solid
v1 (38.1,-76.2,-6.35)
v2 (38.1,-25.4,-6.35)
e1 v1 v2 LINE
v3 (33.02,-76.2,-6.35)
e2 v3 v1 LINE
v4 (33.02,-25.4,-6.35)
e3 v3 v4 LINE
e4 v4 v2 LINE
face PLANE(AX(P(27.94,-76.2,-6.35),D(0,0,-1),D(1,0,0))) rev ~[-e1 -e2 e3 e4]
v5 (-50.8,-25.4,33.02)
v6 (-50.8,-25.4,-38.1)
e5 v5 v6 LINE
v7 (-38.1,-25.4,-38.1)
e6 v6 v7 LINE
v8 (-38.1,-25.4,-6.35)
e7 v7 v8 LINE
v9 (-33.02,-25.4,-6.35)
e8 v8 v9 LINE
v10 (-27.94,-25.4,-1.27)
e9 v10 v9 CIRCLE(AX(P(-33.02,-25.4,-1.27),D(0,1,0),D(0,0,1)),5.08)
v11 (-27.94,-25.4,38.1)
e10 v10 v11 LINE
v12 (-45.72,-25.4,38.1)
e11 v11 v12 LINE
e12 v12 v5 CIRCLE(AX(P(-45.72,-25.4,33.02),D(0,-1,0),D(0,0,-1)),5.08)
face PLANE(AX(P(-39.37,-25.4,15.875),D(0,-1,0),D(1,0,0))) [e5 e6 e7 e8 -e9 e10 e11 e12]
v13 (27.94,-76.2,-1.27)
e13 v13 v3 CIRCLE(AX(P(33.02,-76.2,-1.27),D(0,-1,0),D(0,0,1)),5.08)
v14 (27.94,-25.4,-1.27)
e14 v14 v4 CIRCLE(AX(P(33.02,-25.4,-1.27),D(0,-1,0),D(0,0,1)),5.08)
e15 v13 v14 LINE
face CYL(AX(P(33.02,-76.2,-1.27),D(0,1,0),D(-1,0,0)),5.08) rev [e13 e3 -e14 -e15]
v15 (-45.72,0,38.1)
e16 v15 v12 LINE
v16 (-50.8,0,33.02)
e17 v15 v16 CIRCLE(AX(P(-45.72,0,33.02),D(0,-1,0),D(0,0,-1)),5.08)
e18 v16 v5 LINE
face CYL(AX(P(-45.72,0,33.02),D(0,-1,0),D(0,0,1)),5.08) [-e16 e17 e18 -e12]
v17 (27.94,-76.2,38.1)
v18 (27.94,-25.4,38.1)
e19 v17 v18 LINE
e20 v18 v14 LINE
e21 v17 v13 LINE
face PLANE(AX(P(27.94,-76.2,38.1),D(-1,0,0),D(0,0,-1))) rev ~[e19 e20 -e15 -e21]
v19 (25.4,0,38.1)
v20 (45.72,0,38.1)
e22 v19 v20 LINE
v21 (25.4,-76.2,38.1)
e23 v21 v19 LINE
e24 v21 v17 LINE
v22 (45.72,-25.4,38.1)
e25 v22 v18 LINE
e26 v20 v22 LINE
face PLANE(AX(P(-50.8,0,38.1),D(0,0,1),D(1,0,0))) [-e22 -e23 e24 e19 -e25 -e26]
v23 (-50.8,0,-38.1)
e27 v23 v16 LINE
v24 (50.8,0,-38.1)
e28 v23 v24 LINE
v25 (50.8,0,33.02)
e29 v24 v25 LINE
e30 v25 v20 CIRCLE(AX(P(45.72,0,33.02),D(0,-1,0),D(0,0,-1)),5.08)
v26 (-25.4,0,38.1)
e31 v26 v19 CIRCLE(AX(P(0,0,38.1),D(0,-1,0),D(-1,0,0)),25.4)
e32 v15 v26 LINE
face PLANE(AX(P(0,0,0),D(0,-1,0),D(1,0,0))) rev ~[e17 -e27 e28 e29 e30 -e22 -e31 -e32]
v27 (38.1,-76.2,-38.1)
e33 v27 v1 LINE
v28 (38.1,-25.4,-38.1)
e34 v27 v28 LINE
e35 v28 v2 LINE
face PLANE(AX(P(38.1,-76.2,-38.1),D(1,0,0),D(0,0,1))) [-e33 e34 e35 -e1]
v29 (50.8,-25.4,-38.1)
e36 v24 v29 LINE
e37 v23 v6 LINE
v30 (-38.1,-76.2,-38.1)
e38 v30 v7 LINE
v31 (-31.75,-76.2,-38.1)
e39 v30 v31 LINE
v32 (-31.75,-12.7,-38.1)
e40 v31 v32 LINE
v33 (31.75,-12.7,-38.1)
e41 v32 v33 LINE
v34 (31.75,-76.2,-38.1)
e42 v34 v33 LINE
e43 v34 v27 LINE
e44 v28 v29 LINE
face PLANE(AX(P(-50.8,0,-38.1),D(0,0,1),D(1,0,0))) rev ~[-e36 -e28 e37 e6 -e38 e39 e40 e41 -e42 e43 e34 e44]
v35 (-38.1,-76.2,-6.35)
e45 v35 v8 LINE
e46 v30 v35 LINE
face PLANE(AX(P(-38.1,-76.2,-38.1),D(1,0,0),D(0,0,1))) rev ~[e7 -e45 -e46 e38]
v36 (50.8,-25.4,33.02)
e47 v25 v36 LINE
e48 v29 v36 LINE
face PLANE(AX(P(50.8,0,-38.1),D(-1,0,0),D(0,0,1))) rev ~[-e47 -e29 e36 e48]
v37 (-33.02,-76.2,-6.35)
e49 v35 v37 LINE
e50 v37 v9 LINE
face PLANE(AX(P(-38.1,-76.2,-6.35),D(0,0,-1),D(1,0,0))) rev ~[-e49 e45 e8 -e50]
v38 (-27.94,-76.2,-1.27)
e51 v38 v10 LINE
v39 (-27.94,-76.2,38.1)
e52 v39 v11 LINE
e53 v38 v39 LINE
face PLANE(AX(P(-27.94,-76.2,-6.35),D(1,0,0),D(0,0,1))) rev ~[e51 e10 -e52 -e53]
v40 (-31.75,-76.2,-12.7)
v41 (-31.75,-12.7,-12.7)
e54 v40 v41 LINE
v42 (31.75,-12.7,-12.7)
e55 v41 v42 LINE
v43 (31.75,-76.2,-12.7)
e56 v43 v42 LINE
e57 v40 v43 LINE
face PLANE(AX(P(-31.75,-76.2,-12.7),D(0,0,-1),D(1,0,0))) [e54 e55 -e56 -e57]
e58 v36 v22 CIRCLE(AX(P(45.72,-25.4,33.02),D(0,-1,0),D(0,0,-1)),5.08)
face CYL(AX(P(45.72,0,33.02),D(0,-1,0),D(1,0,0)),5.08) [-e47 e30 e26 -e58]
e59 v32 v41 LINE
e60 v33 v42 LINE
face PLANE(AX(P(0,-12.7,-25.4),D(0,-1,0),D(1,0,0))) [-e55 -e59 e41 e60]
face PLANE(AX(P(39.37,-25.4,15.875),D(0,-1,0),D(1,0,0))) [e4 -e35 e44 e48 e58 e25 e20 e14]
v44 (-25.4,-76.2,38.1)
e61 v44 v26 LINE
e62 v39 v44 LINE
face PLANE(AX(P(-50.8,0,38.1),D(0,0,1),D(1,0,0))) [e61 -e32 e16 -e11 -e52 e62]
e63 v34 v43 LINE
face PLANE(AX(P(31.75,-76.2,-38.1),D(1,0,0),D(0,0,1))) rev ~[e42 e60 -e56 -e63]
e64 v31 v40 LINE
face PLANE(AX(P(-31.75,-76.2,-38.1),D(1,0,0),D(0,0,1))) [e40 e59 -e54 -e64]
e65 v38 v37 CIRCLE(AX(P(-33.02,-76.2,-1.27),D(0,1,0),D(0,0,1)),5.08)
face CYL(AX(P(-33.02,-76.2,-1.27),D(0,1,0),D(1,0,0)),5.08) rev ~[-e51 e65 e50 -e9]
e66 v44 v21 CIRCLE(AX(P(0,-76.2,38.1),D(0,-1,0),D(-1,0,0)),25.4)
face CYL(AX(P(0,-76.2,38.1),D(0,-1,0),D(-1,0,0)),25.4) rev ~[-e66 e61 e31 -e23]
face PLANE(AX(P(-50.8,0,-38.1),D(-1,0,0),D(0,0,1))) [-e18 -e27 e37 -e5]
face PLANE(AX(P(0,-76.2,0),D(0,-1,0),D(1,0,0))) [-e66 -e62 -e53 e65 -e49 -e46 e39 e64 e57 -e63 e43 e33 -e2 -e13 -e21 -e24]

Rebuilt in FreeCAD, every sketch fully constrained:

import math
import FreeCAD as App
import Part
import Sketcher
from FreeCAD import Vector
Q = App.Units.Quantity


def edges_at(feature, points):
    """Names of the edges that pass closest to the given points."""
    edges = feature.Shape.Edges
    near = lambda p: min(range(len(edges)), key=lambda i: edges[i].distToShape(Part.Vertex(*p))[0])
    return sorted({f"Edge{near(p) + 1}" for p in points})


def add_polygon(sketch, points):
    """Adds a closed chain of lines whose ends are joined by coincident constraints."""
    first, n = sketch.GeometryCount, len(points)
    for a, b in zip(points, points[1:] + points[:1]):
        sketch.addGeometry(Part.LineSegment(App.Vector(*a, 0), App.Vector(*b, 0)), False)
    for i in range(n):
        sketch.addConstraint(Sketcher.Constraint("Coincident", first + i, 2, first + (i + 1) % n, 1))

doc = App.newDocument("Part")
body = doc.addObject("PartDesign::Body", "Body")

# Sketch on XZ plane
sketch1 = body.newObject("Sketcher::SketchObject", "Sketch")
sketch1.AttachmentSupport = (doc.getObject("XZ_Plane"), [""])
sketch1.MapMode = "FlatFace"
add_polygon(sketch1, [(-50.8, 38.1), (-50.8, -38.1), (50.8, -38.1), (50.8, 38.1)])  # lines 0-3
sketch1.addConstraint(Sketcher.Constraint("Vertical", 0))
sketch1.addConstraint(Sketcher.Constraint("Horizontal", 1))
sketch1.addConstraint(Sketcher.Constraint("Vertical", 2))
sketch1.addConstraint(Sketcher.Constraint("Horizontal", 3))
sketch1.addConstraint(Sketcher.Constraint("Symmetric", 0, 2, 2, 2, -1, 1))
sketch1.addConstraint(Sketcher.Constraint("DistanceX", 1, 1, 1, 2, Q("4 in")))
sketch1.addConstraint(Sketcher.Constraint("DistanceY", 0, 2, 0, 1, Q("3 in")))
pad1 = body.newObject("PartDesign::Pad", "Pad")
pad1.Profile = sketch1
pad1.Length = Q("3 in")

# Sketch on XZ plane
sketch2 = body.newObject("Sketcher::SketchObject", "Sketch001")
sketch2.AttachmentSupport = (doc.getObject("XZ_Plane"), [""])
sketch2.MapMode = "FlatFace"
sketch2.AttachmentOffset = App.Placement(Vector(0, 0, 3 * 25.4), App.Rotation())
sketch2.addGeometry(Part.ArcOfCircle(Part.Circle(Vector(0, 38.1, 0), Vector(0, 0, 1), 25.4), math.radians(180), math.radians(360)), False)
sketch2.addGeometry(Part.LineSegment(Vector(25.4, 38.1, 0), Vector(-25.4, 38.1, 0)), False)
sketch2.addConstraint(Sketcher.Constraint("Coincident", 0, 1, 1, 2))
sketch2.addConstraint(Sketcher.Constraint("Coincident", 1, 1, 0, 2))
sketch2.addConstraint(Sketcher.Constraint("Horizontal", 1))
sketch2.addConstraint(Sketcher.Constraint("PointOnObject", 0, 3, -2))
sketch2.addConstraint(Sketcher.Constraint("Radius", 0, Q("1 in")))
sketch2.addConstraint(Sketcher.Constraint("DistanceY", -1, 1, 0, 3, Q("1.5 in")))
sketch2.addConstraint(Sketcher.Constraint("DistanceY", -1, 1, 0, 1, Q("1.5 in")))
pocket1 = body.newObject("PartDesign::Pocket", "Pocket")
pocket1.Profile = sketch2
pocket1.Type = "ThroughAll"

# Sketch on XZ plane
sketch3 = body.newObject("Sketcher::SketchObject", "Sketch002")
sketch3.AttachmentSupport = (doc.getObject("XZ_Plane"), [""])
sketch3.MapMode = "FlatFace"
sketch3.AttachmentOffset = App.Placement(Vector(0, 0, 3 * 25.4), App.Rotation())
add_polygon(sketch3, [(-31.75, -12.7), (-31.75, -38.1), (31.75, -38.1), (31.75, -12.7)])  # lines 0-3
sketch3.addConstraint(Sketcher.Constraint("Vertical", 0))
sketch3.addConstraint(Sketcher.Constraint("Horizontal", 1))
sketch3.addConstraint(Sketcher.Constraint("Vertical", 2))
sketch3.addConstraint(Sketcher.Constraint("Horizontal", 3))
sketch3.addConstraint(Sketcher.Constraint("DistanceY", 0, 2, 0, 1, Q("1 in")))
sketch3.addConstraint(Sketcher.Constraint("DistanceX", 1, 1, 1, 2, Q("2.5 in")))
sketch3.addConstraint(Sketcher.Constraint("DistanceY", 0, 2, -1, 1, Q("1.5 in")))
sketch3.addConstraint(Sketcher.Constraint("DistanceX", 0, 2, -1, 1, Q("1.25 in")))
pocket2 = body.newObject("PartDesign::Pocket", "Pocket001")
pocket2.Profile = sketch3
pocket2.Length = Q("2.5 in")

# Sketch on XZ plane
sketch4 = body.newObject("Sketcher::SketchObject", "Sketch003")
sketch4.AttachmentSupport = (doc.getObject("XZ_Plane"), [""])
sketch4.MapMode = "FlatFace"
sketch4.AttachmentOffset = App.Placement(Vector(0, 0, 3 * 25.4), App.Rotation())
add_polygon(sketch4, [(50.8, 38.1), (27.94, 38.1), (27.94, -6.35), (38.1, -6.35), (38.1, -38.1), (50.8, -38.1)])  # lines 0-5
add_polygon(sketch4, [(-27.94, -6.35), (-27.94, 38.1), (-50.8, 38.1), (-50.8, -38.1), (-38.1, -38.1), (-38.1, -6.35)])  # lines 6-11
sketch4.addConstraint(Sketcher.Constraint("Horizontal", 0))
sketch4.addConstraint(Sketcher.Constraint("Vertical", 1))
sketch4.addConstraint(Sketcher.Constraint("Horizontal", 2))
sketch4.addConstraint(Sketcher.Constraint("Vertical", 3))
sketch4.addConstraint(Sketcher.Constraint("Horizontal", 4))
sketch4.addConstraint(Sketcher.Constraint("Vertical", 5))
sketch4.addConstraint(Sketcher.Constraint("Vertical", 6))
sketch4.addConstraint(Sketcher.Constraint("Horizontal", 7))
sketch4.addConstraint(Sketcher.Constraint("Vertical", 8))
sketch4.addConstraint(Sketcher.Constraint("Horizontal", 9))
sketch4.addConstraint(Sketcher.Constraint("Vertical", 10))
sketch4.addConstraint(Sketcher.Constraint("Horizontal", 11))
sketch4.addConstraint(Sketcher.Constraint("Symmetric", 4, 2, 7, 2, -1, 1))
sketch4.addConstraint(Sketcher.Constraint("Symmetric", 0, 2, 6, 2, -2))
sketch4.addConstraint(Sketcher.Constraint("Symmetric", 3, 2, 9, 2, -2))
sketch4.addConstraint(Sketcher.Constraint("Horizontal", 2, 2, 10, 2))
sketch4.addConstraint(Sketcher.Constraint("DistanceY", 5, 1, 5, 2, Q("3 in")))
sketch4.addConstraint(Sketcher.Constraint("DistanceX", 0, 2, 0, 1, Q("0.9 in")))
sketch4.addConstraint(Sketcher.Constraint("DistanceX", 2, 1, 2, 2, Q("0.4 in")))
sketch4.addConstraint(Sketcher.Constraint("DistanceX", -1, 1, 4, 2, Q("2 in")))
sketch4.addConstraint(Sketcher.Constraint("DistanceY", 1, 2, 1, 1, Q("1.75 in")))
pocket3 = body.newObject("PartDesign::Pocket", "Pocket002")
pocket3.Profile = sketch4
pocket3.Length = Q("2 in")
doc.recompute()

fillet = body.newObject("PartDesign::Fillet", "Fillet")
fillet.Base = (pocket3, edges_at(pocket3, [(27.94, -50.8, -6.35), (-27.94, -50.8, -6.35)]))
fillet.Radius = Q("0.2 in")
doc.recompute()

fillet2 = body.newObject("PartDesign::Fillet", "Fillet001")
fillet2.Base = (fillet, edges_at(fillet, [(50.8, -12.7, 38.1), (-50.8, -12.7, 38.1)]))
fillet2.Radius = Q("0.2 in")

doc.recompute()
